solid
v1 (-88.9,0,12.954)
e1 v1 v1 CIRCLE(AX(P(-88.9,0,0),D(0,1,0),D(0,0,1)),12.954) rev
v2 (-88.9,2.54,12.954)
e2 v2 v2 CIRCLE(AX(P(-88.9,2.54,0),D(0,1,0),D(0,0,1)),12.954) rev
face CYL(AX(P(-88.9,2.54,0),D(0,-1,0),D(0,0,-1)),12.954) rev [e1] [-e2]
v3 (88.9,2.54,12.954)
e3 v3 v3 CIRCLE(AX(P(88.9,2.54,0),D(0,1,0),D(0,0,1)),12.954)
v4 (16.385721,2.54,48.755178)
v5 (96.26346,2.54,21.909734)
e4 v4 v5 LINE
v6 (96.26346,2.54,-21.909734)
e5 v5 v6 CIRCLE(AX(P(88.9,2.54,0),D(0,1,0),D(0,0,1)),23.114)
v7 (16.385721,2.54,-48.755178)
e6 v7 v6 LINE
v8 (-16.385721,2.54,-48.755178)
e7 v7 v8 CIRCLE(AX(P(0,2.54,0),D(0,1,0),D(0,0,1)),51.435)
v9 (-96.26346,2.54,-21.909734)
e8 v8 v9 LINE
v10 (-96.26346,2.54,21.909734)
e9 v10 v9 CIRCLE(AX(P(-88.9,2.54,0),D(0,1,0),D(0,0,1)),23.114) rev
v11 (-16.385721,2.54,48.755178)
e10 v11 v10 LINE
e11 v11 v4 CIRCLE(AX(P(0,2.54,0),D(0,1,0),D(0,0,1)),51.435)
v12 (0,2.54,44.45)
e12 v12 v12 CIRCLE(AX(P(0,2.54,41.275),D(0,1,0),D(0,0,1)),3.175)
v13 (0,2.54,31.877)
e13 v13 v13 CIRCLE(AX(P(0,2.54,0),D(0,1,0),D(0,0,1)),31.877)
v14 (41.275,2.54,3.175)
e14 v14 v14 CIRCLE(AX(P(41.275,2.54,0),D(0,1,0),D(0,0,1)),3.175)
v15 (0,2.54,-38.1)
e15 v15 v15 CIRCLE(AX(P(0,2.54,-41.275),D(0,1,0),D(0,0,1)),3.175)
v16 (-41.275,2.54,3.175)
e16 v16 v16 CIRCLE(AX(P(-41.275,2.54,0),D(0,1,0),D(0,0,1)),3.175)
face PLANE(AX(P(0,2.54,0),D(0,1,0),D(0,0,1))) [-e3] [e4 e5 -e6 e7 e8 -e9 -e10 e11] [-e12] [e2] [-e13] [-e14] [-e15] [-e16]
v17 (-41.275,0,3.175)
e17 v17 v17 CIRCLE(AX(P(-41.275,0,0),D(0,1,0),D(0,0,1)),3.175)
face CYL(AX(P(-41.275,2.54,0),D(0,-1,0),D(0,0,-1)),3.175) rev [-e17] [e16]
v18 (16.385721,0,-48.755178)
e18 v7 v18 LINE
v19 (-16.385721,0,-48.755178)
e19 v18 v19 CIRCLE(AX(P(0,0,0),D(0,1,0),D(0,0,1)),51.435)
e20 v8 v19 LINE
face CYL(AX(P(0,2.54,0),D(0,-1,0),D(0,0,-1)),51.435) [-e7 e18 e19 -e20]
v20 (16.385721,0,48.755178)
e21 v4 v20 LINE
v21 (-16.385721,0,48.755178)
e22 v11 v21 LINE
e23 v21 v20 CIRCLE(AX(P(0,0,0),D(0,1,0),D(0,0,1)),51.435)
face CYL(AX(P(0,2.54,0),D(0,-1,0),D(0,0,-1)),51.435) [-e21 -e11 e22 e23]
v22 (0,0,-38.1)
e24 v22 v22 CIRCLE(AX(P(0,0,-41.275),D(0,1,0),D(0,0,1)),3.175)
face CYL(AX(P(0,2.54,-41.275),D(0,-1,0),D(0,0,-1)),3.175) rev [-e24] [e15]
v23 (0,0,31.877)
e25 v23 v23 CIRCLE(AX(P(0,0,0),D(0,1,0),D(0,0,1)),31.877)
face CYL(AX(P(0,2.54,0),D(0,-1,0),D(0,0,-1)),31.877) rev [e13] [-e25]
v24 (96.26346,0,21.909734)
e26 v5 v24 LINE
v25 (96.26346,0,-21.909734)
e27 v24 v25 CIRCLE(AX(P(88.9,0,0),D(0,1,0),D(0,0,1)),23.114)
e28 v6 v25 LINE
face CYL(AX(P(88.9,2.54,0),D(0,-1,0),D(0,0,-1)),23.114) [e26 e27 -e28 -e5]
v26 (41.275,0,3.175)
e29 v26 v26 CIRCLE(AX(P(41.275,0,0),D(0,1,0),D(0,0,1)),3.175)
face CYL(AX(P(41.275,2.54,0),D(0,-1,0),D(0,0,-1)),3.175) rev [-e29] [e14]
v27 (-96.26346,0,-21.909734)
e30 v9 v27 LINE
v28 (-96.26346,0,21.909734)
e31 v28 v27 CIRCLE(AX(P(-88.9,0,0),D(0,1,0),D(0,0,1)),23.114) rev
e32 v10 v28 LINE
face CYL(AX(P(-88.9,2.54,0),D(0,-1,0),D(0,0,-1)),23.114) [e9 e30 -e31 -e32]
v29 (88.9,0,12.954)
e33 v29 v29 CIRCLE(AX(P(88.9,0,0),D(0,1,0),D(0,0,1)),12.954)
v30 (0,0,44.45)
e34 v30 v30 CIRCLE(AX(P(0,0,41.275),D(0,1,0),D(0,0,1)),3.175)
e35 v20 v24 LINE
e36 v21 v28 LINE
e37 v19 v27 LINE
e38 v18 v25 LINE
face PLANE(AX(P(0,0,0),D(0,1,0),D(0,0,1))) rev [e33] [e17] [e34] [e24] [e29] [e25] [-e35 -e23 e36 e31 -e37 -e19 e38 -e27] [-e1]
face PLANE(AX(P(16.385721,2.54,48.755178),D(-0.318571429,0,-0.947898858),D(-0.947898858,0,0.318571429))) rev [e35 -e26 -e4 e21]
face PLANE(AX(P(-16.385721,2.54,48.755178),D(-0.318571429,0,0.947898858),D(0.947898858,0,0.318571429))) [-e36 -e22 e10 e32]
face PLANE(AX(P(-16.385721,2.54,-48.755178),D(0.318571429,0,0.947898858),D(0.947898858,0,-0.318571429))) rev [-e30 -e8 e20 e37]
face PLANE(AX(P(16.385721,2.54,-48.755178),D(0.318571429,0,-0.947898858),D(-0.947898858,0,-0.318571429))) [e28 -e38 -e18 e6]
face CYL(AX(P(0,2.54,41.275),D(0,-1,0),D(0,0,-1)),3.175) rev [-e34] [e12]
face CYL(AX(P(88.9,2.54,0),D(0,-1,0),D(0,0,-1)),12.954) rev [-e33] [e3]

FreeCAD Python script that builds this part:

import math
import FreeCAD as App
import Part
import Sketcher
Q = App.Units.Quantity

doc = App.newDocument("Part")
params = doc.addObject("Spreadsheet::Sheet", "Params")
for row, (alias, value) in enumerate([
    ("sketch1_diameter", "0.25 in"),
    ("sketch1_diameter2", "1.02 in"),
    ("sketch1_diameter3", "2.51 in"),
    ("sketch1_radius", "0.91 in"),
    ("sketch1_radius2", "2.025 in"),
    ("pad1_length", "0.1 in"),
], start=1):
    params.set(f"A{row}", alias)
    params.set(f"B{row}", "=" + value)
    params.setAlias(f"B{row}", alias)

body = doc.addObject("PartDesign::Body", "Body")

sketch1 = doc.addObject("Sketcher::SketchObject", "Sketch")
body.addObject(sketch1)
sketch1.AttachmentSupport = (doc.XZ_Plane, [""])
sketch1.MapMode = "FlatFace"
sketch1.addGeometry([
    Part.LineSegment(App.Vector(96.26346, -21.909734, 0), App.Vector(16.385721, -48.755178, 0)),
    Part.ArcOfCircle(Part.Circle(App.Vector(0, 0, 0), App.Vector(0, 0, 1), 51.435), math.radians(-108.576553), math.radians(-71.423447)),
    Part.LineSegment(App.Vector(-16.385721, -48.755178, 0), App.Vector(-96.26346, -21.909734, 0)),
    Part.ArcOfCircle(Part.Circle(App.Vector(-88.9, 0, 0), App.Vector(0, 0, 1), 23.114), math.radians(108.576553), math.radians(251.423447)),
    Part.LineSegment(App.Vector(-96.26346, 21.909734, 0), App.Vector(-16.385721, 48.755178, 0)),
    Part.ArcOfCircle(Part.Circle(App.Vector(0, 0, 0), App.Vector(0, 0, 1), 51.435), math.radians(71.423447), math.radians(108.576553)),
    Part.LineSegment(App.Vector(16.385721, 48.755178, 0), App.Vector(96.26346, 21.909734, 0)),
    Part.ArcOfCircle(Part.Circle(App.Vector(88.9, 0, 0), App.Vector(0, 0, 1), 23.114), math.radians(-71.423447), math.radians(71.423447)),
    Part.Circle(App.Vector(0, 41.275, 0), App.Vector(0, 0, 1), 3.175),
    Part.Circle(App.Vector(-88.9, 0, 0), App.Vector(0, 0, 1), 12.954),
    Part.Circle(App.Vector(-41.275, 0, 0), App.Vector(0, 0, 1), 3.175),
    Part.Circle(App.Vector(0, 0, 0), App.Vector(0, 0, 1), 31.877),
    Part.Circle(App.Vector(41.275, 0, 0), App.Vector(0, 0, 1), 3.175),
    Part.Circle(App.Vector(88.9, 0, 0), App.Vector(0, 0, 1), 12.954),
    Part.Circle(App.Vector(0, -41.275, 0), App.Vector(0, 0, 1), 3.175),
], False)
sketch1.addConstraint([
    Sketcher.Constraint("Tangent", 0, 2, 1, 2),
    Sketcher.Constraint("Tangent", 1, 1, 2, 1),
    Sketcher.Constraint("Tangent", 2, 2, 3, 2),
    Sketcher.Constraint("Tangent", 3, 1, 4, 1),
    Sketcher.Constraint("Tangent", 4, 2, 5, 2),
    Sketcher.Constraint("Tangent", 5, 1, 6, 1),
    Sketcher.Constraint("Tangent", 6, 2, 7, 2),
    Sketcher.Constraint("Tangent", 7, 1, 0, 1),
    Sketcher.Constraint("Coincident", 1, 3, -1, 1),
    Sketcher.Constraint("Coincident", 5, 3, -1, 1),
    Sketcher.Constraint("Coincident", 11, 3, -1, 1),
    Sketcher.Constraint("Coincident", 9, 3, 3, 3),
    Sketcher.Constraint("Coincident", 13, 3, 7, 3),
    Sketcher.Constraint("Equal", 1, 5),
    Sketcher.Constraint("Equal", 3, 7),
    Sketcher.Constraint("Equal", 8, 10),
    Sketcher.Constraint("Equal", 10, 12),
    Sketcher.Constraint("Equal", 9, 13),
    Sketcher.Constraint("Equal", 12, 14),
    Sketcher.Constraint("Symmetric", 3, 3, 7, 3, -1, 1),
    Sketcher.Constraint("Symmetric", 10, 3, 12, 3, -1, 1),
    Sketcher.Constraint("Symmetric", 8, 3, 14, 3, -1, 1),
    Sketcher.Constraint("PointOnObject", 3, 3, -1),
    Sketcher.Constraint("PointOnObject", 8, 3, -2),
    Sketcher.Constraint("PointOnObject", 10, 3, -1),
    Sketcher.Constraint("Diameter", 8, Q("0.25 in")),
    Sketcher.Constraint("Diameter", 9, Q("1.02 in")),
    Sketcher.Constraint("Diameter", 11, Q("2.51 in")),
    Sketcher.Constraint("Radius", 3, Q("0.91 in")),
    Sketcher.Constraint("Radius", 1, Q("2.025 in")),
    Sketcher.Constraint("DistanceX", 3, 3, 7, 3, Q("7 in")),
    Sketcher.Constraint("DistanceY", -1, 1, 8, 3, Q("1.625 in")),
    Sketcher.Constraint("DistanceX", 10, 3, -1, 1, Q("1.625 in")),
])
sketch1.setExpression("Constraints[25]", "Params.sketch1_diameter")
sketch1.setExpression("Constraints[26]", "Params.sketch1_diameter2")
sketch1.setExpression("Constraints[27]", "Params.sketch1_diameter3")
sketch1.setExpression("Constraints[28]", "Params.sketch1_radius")
sketch1.setExpression("Constraints[29]", "Params.sketch1_radius2")
pad1 = doc.addObject("PartDesign::Pad", "Pad")
body.addObject(pad1)
pad1.Profile = sketch1
pad1.setExpression("Length", "Params.pad1_length")
pad1.Reversed = True

doc.recompute()
